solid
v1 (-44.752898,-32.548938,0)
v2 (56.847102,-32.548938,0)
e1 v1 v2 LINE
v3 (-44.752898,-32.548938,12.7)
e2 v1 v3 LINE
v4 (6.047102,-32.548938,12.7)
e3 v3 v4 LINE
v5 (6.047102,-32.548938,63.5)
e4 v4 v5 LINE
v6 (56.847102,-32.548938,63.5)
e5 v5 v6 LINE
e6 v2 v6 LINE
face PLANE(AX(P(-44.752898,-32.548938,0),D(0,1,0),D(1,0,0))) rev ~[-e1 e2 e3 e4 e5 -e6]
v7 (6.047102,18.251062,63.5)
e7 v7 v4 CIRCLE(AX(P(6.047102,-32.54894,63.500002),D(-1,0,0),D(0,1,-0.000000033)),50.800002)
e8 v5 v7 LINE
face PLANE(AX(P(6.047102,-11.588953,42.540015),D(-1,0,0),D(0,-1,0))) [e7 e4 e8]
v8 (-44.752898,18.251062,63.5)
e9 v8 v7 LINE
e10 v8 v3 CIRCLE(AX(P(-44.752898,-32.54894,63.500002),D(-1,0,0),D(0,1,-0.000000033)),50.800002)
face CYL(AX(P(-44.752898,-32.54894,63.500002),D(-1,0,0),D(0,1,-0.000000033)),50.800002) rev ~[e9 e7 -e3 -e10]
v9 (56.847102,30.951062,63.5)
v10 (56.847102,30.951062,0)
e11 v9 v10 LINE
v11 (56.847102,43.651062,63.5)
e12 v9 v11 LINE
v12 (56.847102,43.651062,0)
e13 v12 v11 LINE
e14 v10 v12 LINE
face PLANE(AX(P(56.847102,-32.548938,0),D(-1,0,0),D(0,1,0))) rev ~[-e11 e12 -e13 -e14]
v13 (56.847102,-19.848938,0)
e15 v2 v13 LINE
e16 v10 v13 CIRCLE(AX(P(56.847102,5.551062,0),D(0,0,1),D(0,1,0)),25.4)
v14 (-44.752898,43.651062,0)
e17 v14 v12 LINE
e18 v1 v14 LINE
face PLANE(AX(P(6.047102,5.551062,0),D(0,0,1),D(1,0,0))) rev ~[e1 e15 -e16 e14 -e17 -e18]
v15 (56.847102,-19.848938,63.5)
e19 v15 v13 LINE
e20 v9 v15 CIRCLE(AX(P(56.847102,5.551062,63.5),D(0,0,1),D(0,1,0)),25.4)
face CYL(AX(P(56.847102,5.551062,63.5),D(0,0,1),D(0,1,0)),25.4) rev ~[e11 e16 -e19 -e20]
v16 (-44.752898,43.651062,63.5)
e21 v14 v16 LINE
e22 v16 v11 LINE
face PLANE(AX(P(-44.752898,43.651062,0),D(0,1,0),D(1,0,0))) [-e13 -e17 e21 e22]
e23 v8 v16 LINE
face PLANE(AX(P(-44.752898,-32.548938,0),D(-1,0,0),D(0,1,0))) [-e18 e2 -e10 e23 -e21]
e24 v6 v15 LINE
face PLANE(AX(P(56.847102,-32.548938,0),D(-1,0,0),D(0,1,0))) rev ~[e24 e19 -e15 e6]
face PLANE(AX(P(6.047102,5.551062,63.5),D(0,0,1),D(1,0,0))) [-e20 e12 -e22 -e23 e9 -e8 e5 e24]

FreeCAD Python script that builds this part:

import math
import FreeCAD as App
import Part
import Sketcher

V = App.Vector
Q = App.Units.Quantity

doc = App.newDocument("Part")
body = doc.addObject("PartDesign::Body", "Body")

# Sketch on XY plane
sketch1 = doc.addObject("Sketcher::SketchObject", "Sketch")
body.addObject(sketch1)
sketch1.AttachmentSupport = (doc.XY_Plane, [""])
sketch1.MapMode = "FlatFace"
sketch1.addGeometry([
    Part.LineSegment(V(-45, 44, 0), V(-45, -33, 0)),
    Part.LineSegment(V(-45, -33, 0), V(57, -33, 0)),
    Part.LineSegment(V(57, -33, 0), V(57, 44, 0)),
    Part.LineSegment(V(57, 44, 0), V(-45, 44, 0)),
], False)
sketch1.addConstraint([
    Sketcher.Constraint("Coincident", 0, 2, 1, 1),
    Sketcher.Constraint("Coincident", 1, 2, 2, 1),
    Sketcher.Constraint("Coincident", 2, 2, 3, 1),
    Sketcher.Constraint("Coincident", 3, 2, 0, 1),
    Sketcher.Constraint("Vertical", 0),
    Sketcher.Constraint("Horizontal", 1),
    Sketcher.Constraint("Vertical", 2),
    Sketcher.Constraint("Horizontal", 3),
    Sketcher.Constraint("DistanceX", 1, 1, 1, 2, Q("4 in")),
    Sketcher.Constraint("DistanceY", 0, 2, 0, 1, Q("3 in")),
    Sketcher.Constraint("DistanceX", 0, 2, -1, 1, Q("44.752898 mm")),
    Sketcher.Constraint("DistanceY", 0, 2, -1, 1, Q("32.548938 mm")),
])
pad1 = doc.addObject("PartDesign::Pad", "Pad")
body.addObject(pad1)
pad1.Profile = sketch1
pad1.Length = Q("2.5 in")

# Sketch on XY plane
sketch2 = doc.addObject("Sketcher::SketchObject", "Sketch001")
body.addObject(sketch2)
sketch2.AttachmentSupport = (doc.XY_Plane, [""])
sketch2.MapMode = "FlatFace"
sketch2.AttachmentOffset = App.Placement(V(0, 0, 2.5 * 25.4), App.Rotation())
sketch2.addGeometry([
    Part.LineSegment(V(57, -20, 0), V(57, 31, 0)),
    Part.ArcOfCircle(Part.Circle(V(57, 6, 0), V(0, 0, 1), 25), math.radians(90), math.radians(270)),
], False)
sketch2.addConstraint([
    Sketcher.Constraint("Coincident", 0, 1, 1, 2),
    Sketcher.Constraint("Coincident", 1, 1, 0, 2),
    Sketcher.Constraint("Vertical", 0),
    Sketcher.Constraint("Vertical", 1, 3, 0, 1),
    Sketcher.Constraint("Radius", 1, Q("1 in")),
    Sketcher.Constraint("DistanceY", 0, 1, -1, 1, Q("19.848938 mm")),
    Sketcher.Constraint("DistanceX", -1, 1, 1, 3, Q("56.847102 mm")),
])
pocket1 = doc.addObject("PartDesign::Pocket", "Pocket")
body.addObject(pocket1)
pocket1.Profile = sketch2
pocket1.Type = "ThroughAll"

# Sketch on YZ plane
sketch3 = doc.addObject("Sketcher::SketchObject", "Sketch002")
body.addObject(sketch3)
sketch3.AttachmentSupport = (doc.YZ_Plane, [""])
sketch3.MapMode = "FlatFace"
sketch3.AttachmentOffset = App.Placement(V(0, 0, -44.752898), App.Rotation())
sketch3.addGeometry([
    Part.LineSegment(V(-33, 64, 0), V(18, 64, 0)),
    Part.ArcOfCircle(Part.Circle(V(-33, 64, 0), V(0, 0, 1), 51), math.radians(-90), math.radians(0)),
    Part.LineSegment(V(-33, 13, 0), V(-33, 64, 0)),
], False)
sketch3.addConstraint([
    Sketcher.Constraint("Coincident", 0, 2, 1, 2),
    Sketcher.Constraint("Coincident", 1, 1, 2, 1),
    Sketcher.Constraint("Coincident", 2, 2, 0, 1),
    Sketcher.Constraint("Horizontal", 0),
    Sketcher.Constraint("Vertical", 2),
    Sketcher.Constraint("Coincident", 2, 2, 1, 3),
    Sketcher.Constraint("Radius", 1, Q("2.0000001 in")),
    Sketcher.Constraint("DistanceY", -1, 1, 1, 3, Q("2.5000001 in")),
    Sketcher.Constraint("DistanceX", 1, 3, -1, 1, Q("32.54894 mm")),
])
pocket2 = doc.addObject("PartDesign::Pocket", "Pocket001")
body.addObject(pocket2)
pocket2.Profile = sketch3
pocket2.Length = Q("2 in")
pocket2.Reversed = True

doc.recompute()
